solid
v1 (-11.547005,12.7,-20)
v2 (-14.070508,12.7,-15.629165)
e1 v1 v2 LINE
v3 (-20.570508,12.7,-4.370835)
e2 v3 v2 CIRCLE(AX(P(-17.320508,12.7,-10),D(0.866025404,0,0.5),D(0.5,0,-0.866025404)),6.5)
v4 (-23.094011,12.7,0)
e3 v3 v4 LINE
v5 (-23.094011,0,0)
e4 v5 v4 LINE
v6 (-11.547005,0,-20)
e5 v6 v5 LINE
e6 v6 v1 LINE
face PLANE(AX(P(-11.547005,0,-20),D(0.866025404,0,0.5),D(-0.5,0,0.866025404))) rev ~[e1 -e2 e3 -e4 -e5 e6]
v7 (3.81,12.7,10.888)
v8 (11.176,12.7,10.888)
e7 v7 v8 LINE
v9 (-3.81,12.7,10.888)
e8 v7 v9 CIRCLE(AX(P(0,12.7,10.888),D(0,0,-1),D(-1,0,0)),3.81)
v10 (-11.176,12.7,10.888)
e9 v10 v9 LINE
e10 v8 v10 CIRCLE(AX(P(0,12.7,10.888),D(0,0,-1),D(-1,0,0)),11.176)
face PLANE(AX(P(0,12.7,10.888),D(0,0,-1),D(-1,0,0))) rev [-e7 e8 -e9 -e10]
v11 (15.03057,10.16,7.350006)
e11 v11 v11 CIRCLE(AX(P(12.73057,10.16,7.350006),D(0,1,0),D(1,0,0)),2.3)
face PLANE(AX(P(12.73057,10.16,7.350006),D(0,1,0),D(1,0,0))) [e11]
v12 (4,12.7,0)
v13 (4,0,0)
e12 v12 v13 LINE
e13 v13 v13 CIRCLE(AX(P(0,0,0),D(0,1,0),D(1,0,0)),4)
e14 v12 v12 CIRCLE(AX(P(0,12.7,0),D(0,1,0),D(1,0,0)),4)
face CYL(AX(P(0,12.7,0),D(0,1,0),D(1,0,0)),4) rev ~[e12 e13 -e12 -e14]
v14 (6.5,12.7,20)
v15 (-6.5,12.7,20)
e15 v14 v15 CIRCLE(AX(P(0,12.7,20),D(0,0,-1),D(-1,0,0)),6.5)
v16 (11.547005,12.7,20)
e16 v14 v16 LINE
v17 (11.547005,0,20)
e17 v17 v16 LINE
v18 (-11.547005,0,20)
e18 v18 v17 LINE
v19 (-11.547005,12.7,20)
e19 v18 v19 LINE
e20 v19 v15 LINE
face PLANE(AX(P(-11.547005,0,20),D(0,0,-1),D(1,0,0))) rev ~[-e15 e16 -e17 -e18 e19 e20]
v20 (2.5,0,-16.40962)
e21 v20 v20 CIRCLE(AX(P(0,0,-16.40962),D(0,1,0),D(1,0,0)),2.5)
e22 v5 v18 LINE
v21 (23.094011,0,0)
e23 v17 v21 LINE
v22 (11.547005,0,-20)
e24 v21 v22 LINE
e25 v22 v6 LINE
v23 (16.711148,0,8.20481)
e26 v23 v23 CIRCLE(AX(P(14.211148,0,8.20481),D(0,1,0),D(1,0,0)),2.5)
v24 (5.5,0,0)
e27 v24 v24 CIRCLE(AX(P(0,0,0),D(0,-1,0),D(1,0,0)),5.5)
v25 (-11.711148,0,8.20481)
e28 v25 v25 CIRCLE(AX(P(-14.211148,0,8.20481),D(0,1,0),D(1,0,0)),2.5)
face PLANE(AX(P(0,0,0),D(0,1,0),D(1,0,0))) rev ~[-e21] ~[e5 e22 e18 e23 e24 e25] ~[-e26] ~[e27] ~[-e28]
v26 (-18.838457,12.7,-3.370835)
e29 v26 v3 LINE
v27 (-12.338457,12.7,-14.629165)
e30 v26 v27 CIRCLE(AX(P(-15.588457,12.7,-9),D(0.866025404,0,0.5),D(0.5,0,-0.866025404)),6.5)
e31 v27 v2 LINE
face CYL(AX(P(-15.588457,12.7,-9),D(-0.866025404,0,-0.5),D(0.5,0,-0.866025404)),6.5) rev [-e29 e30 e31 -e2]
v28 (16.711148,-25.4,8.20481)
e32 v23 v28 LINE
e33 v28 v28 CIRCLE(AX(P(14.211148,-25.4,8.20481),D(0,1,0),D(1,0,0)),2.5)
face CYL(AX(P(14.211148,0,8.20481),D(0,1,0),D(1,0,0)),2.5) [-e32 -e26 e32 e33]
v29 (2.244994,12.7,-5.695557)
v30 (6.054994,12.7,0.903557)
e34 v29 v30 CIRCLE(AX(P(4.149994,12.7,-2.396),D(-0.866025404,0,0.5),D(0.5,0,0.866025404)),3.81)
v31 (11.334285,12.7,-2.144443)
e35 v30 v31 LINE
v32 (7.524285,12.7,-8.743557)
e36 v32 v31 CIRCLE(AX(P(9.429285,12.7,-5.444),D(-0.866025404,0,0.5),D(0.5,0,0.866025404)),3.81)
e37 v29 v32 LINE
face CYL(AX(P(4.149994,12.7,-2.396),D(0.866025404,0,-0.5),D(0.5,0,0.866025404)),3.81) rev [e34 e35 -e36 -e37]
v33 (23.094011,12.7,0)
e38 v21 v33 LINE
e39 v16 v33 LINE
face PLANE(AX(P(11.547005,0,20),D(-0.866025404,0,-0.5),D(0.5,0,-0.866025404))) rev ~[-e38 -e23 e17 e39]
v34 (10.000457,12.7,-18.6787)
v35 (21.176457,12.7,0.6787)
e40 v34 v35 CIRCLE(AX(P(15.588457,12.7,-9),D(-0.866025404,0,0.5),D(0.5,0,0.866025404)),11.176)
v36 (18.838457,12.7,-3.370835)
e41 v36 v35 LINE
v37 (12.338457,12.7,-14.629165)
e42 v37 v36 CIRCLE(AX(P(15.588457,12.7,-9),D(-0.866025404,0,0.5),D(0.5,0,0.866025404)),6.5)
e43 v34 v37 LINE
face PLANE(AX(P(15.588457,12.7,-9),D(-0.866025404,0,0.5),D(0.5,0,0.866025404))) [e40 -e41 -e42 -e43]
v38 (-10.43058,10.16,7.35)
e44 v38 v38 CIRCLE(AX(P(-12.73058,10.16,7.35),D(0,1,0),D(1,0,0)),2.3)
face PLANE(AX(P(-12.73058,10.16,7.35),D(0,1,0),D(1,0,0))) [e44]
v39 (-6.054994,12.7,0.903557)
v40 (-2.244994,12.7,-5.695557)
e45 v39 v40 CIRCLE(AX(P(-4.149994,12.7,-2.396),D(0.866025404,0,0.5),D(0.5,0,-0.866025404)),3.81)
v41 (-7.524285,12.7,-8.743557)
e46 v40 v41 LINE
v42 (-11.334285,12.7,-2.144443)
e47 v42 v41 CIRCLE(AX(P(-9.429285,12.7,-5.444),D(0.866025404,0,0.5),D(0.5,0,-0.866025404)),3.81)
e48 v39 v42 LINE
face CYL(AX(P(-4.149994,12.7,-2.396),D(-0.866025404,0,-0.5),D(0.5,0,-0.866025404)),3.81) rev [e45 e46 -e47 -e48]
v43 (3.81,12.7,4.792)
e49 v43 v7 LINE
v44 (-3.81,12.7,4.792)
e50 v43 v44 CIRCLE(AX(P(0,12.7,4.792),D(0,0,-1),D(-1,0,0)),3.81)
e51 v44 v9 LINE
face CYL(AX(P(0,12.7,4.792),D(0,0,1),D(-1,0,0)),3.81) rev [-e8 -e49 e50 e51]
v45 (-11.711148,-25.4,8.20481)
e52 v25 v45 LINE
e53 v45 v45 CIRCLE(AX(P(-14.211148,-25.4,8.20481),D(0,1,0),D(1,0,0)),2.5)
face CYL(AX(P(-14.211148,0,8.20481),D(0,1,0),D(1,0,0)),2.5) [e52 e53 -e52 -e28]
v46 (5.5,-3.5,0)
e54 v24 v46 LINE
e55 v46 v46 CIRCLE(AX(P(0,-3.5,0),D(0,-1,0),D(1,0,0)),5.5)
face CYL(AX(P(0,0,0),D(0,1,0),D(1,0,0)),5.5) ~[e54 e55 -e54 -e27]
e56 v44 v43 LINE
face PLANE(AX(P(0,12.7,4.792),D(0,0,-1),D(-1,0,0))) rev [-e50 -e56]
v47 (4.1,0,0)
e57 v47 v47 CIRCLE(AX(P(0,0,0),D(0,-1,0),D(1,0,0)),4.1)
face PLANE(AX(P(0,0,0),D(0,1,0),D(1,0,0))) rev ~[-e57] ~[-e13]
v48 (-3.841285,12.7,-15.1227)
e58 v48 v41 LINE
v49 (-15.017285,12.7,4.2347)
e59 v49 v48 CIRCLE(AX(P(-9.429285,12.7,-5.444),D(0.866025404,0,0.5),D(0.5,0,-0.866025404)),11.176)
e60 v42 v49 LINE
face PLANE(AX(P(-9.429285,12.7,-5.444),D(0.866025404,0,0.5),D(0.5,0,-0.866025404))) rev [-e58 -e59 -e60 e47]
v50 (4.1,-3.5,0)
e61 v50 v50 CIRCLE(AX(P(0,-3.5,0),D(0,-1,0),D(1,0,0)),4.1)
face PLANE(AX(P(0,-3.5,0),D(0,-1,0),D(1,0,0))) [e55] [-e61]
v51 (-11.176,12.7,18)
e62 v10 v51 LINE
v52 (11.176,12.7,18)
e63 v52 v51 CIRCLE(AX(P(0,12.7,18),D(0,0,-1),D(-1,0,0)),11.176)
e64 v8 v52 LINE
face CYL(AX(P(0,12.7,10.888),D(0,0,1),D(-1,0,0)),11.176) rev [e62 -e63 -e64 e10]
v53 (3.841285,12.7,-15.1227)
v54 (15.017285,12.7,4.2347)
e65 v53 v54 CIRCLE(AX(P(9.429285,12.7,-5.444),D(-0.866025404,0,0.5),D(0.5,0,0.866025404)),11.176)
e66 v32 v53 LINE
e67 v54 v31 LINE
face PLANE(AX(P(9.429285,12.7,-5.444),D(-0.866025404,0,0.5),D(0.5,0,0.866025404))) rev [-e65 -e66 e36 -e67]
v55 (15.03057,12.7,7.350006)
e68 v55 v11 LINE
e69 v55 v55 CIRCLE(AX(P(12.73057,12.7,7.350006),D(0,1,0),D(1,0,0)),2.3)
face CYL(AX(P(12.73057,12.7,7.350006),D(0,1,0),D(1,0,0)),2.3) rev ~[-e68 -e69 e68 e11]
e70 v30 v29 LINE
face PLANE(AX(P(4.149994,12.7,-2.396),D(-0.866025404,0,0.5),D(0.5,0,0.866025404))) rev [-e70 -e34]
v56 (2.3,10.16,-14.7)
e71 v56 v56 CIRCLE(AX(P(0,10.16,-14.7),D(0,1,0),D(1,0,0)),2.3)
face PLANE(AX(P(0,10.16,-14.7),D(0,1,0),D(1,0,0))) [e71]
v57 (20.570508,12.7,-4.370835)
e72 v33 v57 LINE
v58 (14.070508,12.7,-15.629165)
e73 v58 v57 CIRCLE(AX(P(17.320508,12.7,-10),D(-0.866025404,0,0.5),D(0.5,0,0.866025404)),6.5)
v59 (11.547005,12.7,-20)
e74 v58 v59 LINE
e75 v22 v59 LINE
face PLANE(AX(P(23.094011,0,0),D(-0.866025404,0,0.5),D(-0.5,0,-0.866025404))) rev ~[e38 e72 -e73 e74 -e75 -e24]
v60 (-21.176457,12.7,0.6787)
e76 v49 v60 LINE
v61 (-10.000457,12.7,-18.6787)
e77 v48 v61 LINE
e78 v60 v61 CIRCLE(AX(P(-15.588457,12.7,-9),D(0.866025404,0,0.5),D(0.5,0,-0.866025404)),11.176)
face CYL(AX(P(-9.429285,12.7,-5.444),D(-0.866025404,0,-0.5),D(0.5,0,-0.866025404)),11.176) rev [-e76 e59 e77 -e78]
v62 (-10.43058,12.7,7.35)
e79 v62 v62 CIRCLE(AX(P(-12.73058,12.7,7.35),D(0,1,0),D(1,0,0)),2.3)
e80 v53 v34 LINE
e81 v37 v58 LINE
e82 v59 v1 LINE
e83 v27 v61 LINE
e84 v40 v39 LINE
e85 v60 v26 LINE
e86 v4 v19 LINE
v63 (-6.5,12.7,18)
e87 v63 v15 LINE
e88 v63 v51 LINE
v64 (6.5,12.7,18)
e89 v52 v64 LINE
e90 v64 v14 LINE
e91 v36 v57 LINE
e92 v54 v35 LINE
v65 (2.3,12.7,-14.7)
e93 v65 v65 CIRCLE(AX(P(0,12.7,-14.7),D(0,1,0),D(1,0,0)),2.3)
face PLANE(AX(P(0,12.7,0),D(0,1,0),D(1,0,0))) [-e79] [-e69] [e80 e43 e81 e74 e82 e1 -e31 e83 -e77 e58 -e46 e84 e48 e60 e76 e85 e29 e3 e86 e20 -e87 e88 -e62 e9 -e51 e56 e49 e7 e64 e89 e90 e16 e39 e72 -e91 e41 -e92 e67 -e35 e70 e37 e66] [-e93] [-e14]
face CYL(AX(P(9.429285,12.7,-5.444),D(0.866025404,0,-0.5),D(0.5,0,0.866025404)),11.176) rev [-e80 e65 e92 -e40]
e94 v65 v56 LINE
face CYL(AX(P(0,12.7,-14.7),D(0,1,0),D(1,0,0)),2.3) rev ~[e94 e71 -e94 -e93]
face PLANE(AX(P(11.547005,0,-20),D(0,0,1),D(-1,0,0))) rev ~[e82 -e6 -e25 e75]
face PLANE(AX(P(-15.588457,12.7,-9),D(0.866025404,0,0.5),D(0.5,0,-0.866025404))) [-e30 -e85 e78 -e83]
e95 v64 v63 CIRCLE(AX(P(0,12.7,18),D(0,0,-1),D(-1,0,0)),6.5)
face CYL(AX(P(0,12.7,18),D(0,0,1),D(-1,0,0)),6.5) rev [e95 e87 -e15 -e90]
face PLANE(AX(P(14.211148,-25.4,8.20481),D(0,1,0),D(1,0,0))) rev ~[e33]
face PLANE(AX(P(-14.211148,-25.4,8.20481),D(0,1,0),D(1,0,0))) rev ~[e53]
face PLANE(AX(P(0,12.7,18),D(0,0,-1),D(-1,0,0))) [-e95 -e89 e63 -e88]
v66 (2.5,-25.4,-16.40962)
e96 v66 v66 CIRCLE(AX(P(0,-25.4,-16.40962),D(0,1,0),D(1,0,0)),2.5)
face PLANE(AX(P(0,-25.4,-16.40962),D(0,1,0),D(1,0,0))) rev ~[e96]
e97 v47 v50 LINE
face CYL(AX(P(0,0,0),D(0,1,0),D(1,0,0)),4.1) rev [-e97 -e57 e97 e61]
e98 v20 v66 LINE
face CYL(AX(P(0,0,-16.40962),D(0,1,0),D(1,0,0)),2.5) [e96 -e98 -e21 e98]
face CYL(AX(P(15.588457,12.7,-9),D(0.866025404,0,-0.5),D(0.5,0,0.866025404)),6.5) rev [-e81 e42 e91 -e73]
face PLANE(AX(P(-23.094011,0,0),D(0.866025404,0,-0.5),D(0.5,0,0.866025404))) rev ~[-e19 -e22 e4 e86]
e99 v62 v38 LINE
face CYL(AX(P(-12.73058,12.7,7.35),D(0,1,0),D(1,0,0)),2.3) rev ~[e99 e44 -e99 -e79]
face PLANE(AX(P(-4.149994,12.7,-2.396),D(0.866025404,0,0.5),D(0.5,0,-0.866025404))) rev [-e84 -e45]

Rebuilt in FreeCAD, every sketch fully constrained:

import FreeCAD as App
import Part
import Sketcher

V = App.Vector
Q = App.Units.Quantity


def add_polygon(sketch, points):
    """Adds a closed chain of lines whose ends are joined by coincident constraints."""
    first, n = sketch.GeometryCount, len(points)
    for a, b in zip(points, points[1:] + points[:1]):
        sketch.addGeometry(Part.LineSegment(App.Vector(*a, 0), App.Vector(*b, 0)), False)
    for i in range(n):
        sketch.addConstraint(Sketcher.Constraint("Coincident", first + i, 2, first + (i + 1) % n, 1))

doc = App.newDocument("Part")
body = doc.addObject("PartDesign::Body", "Body")

# Sketch on XZ plane
sketch1 = body.newObject("Sketcher::SketchObject", "Sketch")
sketch1.AttachmentSupport = (doc.getObject("XZ_Plane"), [""])
sketch1.MapMode = "FlatFace"
add_polygon(sketch1, [(12, 20), (23, 0), (12, -20), (-12, -20), (-23, 0), (-12, 20)])  # lines 0-5
sketch1.addConstraint([
    Sketcher.Constraint("Horizontal", 2),
    Sketcher.Constraint("Horizontal", 5),
    Sketcher.Constraint("Symmetric", 0, 2, 3, 2, -1, 1),
    Sketcher.Constraint("Symmetric", 1, 2, 4, 2, -1, 1),
    Sketcher.Constraint("PointOnObject", 0, 2, -1),
    Sketcher.Constraint("Parallel", 0, 3),
    Sketcher.Constraint("Vertical", 2, 2, 4, 2),
    Sketcher.Constraint("Angle", 0, Q("-60 deg")),
    Sketcher.Constraint("DistanceY", 1, 2, -1, 1, Q("20 mm")),
    Sketcher.Constraint("DistanceX", 2, 2, 2, 1, Q("23.094011 mm")),
])
pad1 = body.newObject("PartDesign::Pad", "Pad")
pad1.Profile = sketch1
pad1.Length = 12.7
pad1.Reversed = True

# Sketch on XZ plane
sketch2 = body.newObject("Sketcher::SketchObject", "Sketch001")
sketch2.AttachmentSupport = (doc.getObject("XZ_Plane"), [""])
sketch2.MapMode = "FlatFace"
sketch2.addGeometry([
    Part.Circle(V(0, 0, 0), V(0, 0, 1), 5.5),
    Part.Circle(V(0, 0, 0), V(0, 0, 1), 4.1),
], False)
sketch2.addConstraint([
    Sketcher.Constraint("Coincident", 0, 3, -1, 1),
    Sketcher.Constraint("Coincident", 1, 3, -1, 1),
    Sketcher.Constraint("Diameter", 0, Q("11 mm")),
    Sketcher.Constraint("Diameter", 1, Q("8.2 mm")),
])
pad2 = body.newObject("PartDesign::Pad", "Pad001")
pad2.Profile = sketch2
pad2.Length = 3.5

# Sketch on XZ plane
sketch3 = body.newObject("Sketcher::SketchObject", "Sketch002")
sketch3.AttachmentSupport = (doc.getObject("XZ_Plane"), [""])
sketch3.MapMode = "FlatFace"
sketch3.AttachmentOffset = App.Placement(V(0, 0, -12.7), App.Rotation())
add_polygon(sketch3, [(0, 20), (0, 4.8), (-3.8, 4.8), (-3.8, 10.9), (-11.2, 10.9), (-11.2, 18), (-6.5, 18), (-6.5, 20)])  # lines 0-7
sketch3.addConstraint([
    Sketcher.Constraint("Vertical", 0),
    Sketcher.Constraint("Horizontal", 1),
    Sketcher.Constraint("Vertical", 2),
    Sketcher.Constraint("Horizontal", 3),
    Sketcher.Constraint("Vertical", 4),
    Sketcher.Constraint("Horizontal", 5),
    Sketcher.Constraint("Vertical", 6),
    Sketcher.Constraint("Horizontal", 7),
    Sketcher.Constraint("PointOnObject", 0, 2, -2),
    Sketcher.Constraint("DistanceY", 6, 1, 6, 2, Q("2 mm")),
    Sketcher.Constraint("DistanceX", 7, 1, 7, 2, Q("6.5 mm")),
    Sketcher.Constraint("DistanceY", -1, 1, 4, 2, Q("18 mm")),
    Sketcher.Constraint("DistanceX", 1, 2, 1, 1, Q("3.81 mm")),
    Sketcher.Constraint("DistanceX", 3, 2, 3, 1, Q("7.366 mm")),
    Sketcher.Constraint("DistanceY", 0, 2, 0, 1, Q("15.208 mm")),
    Sketcher.Constraint("DistanceY", 2, 1, 2, 2, Q("6.096 mm")),
])
groove = body.newObject("PartDesign::Groove", "Groove")
groove.Profile = sketch3
groove.ReferenceAxis = (sketch3, ["V_Axis"])
groove.Angle = 360
doc.recompute()

polarpattern = body.newObject("PartDesign::PolarPattern", "PolarPattern")
polarpattern.Originals = [groove]
polarpattern.Axis = (doc.getObject("Y_Axis"), [""])
polarpattern.Angle = 360
polarpattern.Occurrences = 3
body.Tip = polarpattern

# Sketch on XZ plane
sketch4 = body.newObject("Sketcher::SketchObject", "Sketch003")
sketch4.AttachmentSupport = (doc.getObject("XZ_Plane"), [""])
sketch4.MapMode = "FlatFace"
sketch4.AttachmentOffset = App.Placement(V(0, 0, -12.7), App.Rotation())
sketch4.addGeometry(Part.Circle(V(0, 0, 0), V(0, 0, 1), 4), False)
sketch4.addConstraint([
    Sketcher.Constraint("Coincident", 0, 3, -1, 1),
    Sketcher.Constraint("Diameter", 0, Q("8 mm")),
])
pocket1 = body.newObject("PartDesign::Pocket", "Pocket")
pocket1.Profile = sketch4
pocket1.Type = "ThroughAll"
pocket1.Reversed = True

# Sketch on XZ plane
sketch5 = body.newObject("Sketcher::SketchObject", "Sketch004")
sketch5.AttachmentSupport = (doc.getObject("XZ_Plane"), [""])
sketch5.MapMode = "FlatFace"
sketch5.AttachmentOffset = App.Placement(V(0, 0, -12.7), App.Rotation())
sketch5.addGeometry([
    Part.Circle(V(0, -14.7, 0), V(0, 0, 1), 2.3),
    Part.Circle(V(12.7, 7.4, 0), V(0, 0, 1), 2.3),
    Part.Circle(V(-12.7, 7.3, 0), V(0, 0, 1), 2.3),
], False)
sketch5.addConstraint([
    Sketcher.Constraint("Equal", 0, 1),
    Sketcher.Constraint("Equal", 1, 2),
    Sketcher.Constraint("PointOnObject", 0, 3, -2),
    Sketcher.Constraint("Diameter", 0, Q("4.6 mm")),
    Sketcher.Constraint("DistanceY", 0, 3, -1, 1, Q("14.7 mm")),
    Sketcher.Constraint("DistanceY", -1, 1, 2, 3, Q("7.35 mm")),
    Sketcher.Constraint("DistanceX", -1, 1, 1, 3, Q("12.73057 mm")),
    Sketcher.Constraint("DistanceX", 2, 3, -1, 1, Q("12.73058 mm")),
    Sketcher.Constraint("DistanceY", -1, 1, 1, 3, Q("7.350006 mm")),
])
pocket2 = body.newObject("PartDesign::Pocket", "Pocket001")
pocket2.Profile = sketch5
pocket2.Length = 2.54
pocket2.Reversed = True

# Sketch on XZ plane
sketch6 = body.newObject("Sketcher::SketchObject", "Sketch005")
sketch6.AttachmentSupport = (doc.getObject("XZ_Plane"), [""])
sketch6.MapMode = "FlatFace"
sketch6.addGeometry([
    Part.Circle(V(0, -16.4, 0), V(0, 0, 1), 2.5),
    Part.Circle(V(14.2, 8.2, 0), V(0, 0, 1), 2.5),
    Part.Circle(V(-14.2, 8.2, 0), V(0, 0, 1), 2.5),
], False)
sketch6.addConstraint([
    Sketcher.Constraint("Equal", 0, 1),
    Sketcher.Constraint("Equal", 1, 2),
    Sketcher.Constraint("Symmetric", 1, 3, 2, 3, -2),
    Sketcher.Constraint("PointOnObject", 0, 3, -2),
    Sketcher.Constraint("Diameter", 0, Q("5 mm")),
    Sketcher.Constraint("DistanceY", 0, 3, -1, 1, Q("16.40962 mm")),
    Sketcher.Constraint("DistanceY", -1, 1, 1, 3, Q("8.20481 mm")),
    Sketcher.Constraint("DistanceX", -1, 1, 1, 3, Q("14.211148 mm")),
])
pad3 = body.newObject("PartDesign::Pad", "Pad002")
pad3.Profile = sketch6
pad3.Length = 25.4

doc.recompute()
